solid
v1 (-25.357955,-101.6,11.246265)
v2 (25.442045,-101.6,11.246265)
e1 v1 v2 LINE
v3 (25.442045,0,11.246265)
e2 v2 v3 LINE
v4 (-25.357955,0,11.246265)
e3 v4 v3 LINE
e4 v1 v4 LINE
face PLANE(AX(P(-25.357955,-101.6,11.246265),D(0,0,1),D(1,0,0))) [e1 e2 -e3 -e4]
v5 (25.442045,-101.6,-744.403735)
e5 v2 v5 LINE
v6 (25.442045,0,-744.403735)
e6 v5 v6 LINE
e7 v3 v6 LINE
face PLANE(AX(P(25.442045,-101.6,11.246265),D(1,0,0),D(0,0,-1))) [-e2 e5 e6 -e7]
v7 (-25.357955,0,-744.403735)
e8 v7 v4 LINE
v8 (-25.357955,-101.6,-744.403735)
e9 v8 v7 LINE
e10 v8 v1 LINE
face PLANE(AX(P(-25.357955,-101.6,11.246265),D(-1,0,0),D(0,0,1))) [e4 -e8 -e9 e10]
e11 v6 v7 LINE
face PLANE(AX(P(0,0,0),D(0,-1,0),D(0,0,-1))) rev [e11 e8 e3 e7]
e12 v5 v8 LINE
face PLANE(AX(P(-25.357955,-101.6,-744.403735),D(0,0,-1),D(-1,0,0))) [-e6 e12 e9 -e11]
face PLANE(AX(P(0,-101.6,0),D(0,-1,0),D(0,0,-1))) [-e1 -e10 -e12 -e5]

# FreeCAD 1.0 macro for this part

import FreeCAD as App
import Part
import Sketcher
Q = App.Units.Quantity

doc = App.newDocument("Part")
body = doc.addObject("PartDesign::Body", "Body")

sketch1 = body.newObject("Sketcher::SketchObject", "Sketch")
sketch1.AttachmentSupport = (doc.getObject("XZ_Plane"), [""])
sketch1.MapMode = "FlatFace"
sketch1.addGeometry(Part.LineSegment(App.Vector(-25, -744, 0), App.Vector(-25, 11, 0)), False)
sketch1.addGeometry(Part.LineSegment(App.Vector(-25, 11, 0), App.Vector(25, 11, 0)), False)
sketch1.addGeometry(Part.LineSegment(App.Vector(25, 11, 0), App.Vector(25, -744, 0)), False)
sketch1.addGeometry(Part.LineSegment(App.Vector(25, -744, 0), App.Vector(-25, -744, 0)), False)
sketch1.addConstraint(Sketcher.Constraint("Coincident", 0, 2, 1, 1))
sketch1.addConstraint(Sketcher.Constraint("Coincident", 1, 2, 2, 1))
sketch1.addConstraint(Sketcher.Constraint("Coincident", 2, 2, 3, 1))
sketch1.addConstraint(Sketcher.Constraint("Coincident", 3, 2, 0, 1))
sketch1.addConstraint(Sketcher.Constraint("Vertical", 0))
sketch1.addConstraint(Sketcher.Constraint("Horizontal", 1))
sketch1.addConstraint(Sketcher.Constraint("Vertical", 2))
sketch1.addConstraint(Sketcher.Constraint("Horizontal", 3))
sketch1.addConstraint(Sketcher.Constraint("DistanceX", 1, 1, 1, 2, Q("2 in")))
sketch1.addConstraint(Sketcher.Constraint("DistanceY", 0, 1, 0, 2, Q("29.75 in")))
sketch1.addConstraint(Sketcher.Constraint("DistanceX", 0, 2, -1, 1, Q("25.357955 mm")))
sketch1.addConstraint(Sketcher.Constraint("DistanceY", -1, 1, 0, 2, Q("11.246265 mm")))
pad1 = body.newObject("PartDesign::Pad", "Pad")
pad1.Profile = sketch1
pad1.Length = Q("4 in")

doc.recompute()
